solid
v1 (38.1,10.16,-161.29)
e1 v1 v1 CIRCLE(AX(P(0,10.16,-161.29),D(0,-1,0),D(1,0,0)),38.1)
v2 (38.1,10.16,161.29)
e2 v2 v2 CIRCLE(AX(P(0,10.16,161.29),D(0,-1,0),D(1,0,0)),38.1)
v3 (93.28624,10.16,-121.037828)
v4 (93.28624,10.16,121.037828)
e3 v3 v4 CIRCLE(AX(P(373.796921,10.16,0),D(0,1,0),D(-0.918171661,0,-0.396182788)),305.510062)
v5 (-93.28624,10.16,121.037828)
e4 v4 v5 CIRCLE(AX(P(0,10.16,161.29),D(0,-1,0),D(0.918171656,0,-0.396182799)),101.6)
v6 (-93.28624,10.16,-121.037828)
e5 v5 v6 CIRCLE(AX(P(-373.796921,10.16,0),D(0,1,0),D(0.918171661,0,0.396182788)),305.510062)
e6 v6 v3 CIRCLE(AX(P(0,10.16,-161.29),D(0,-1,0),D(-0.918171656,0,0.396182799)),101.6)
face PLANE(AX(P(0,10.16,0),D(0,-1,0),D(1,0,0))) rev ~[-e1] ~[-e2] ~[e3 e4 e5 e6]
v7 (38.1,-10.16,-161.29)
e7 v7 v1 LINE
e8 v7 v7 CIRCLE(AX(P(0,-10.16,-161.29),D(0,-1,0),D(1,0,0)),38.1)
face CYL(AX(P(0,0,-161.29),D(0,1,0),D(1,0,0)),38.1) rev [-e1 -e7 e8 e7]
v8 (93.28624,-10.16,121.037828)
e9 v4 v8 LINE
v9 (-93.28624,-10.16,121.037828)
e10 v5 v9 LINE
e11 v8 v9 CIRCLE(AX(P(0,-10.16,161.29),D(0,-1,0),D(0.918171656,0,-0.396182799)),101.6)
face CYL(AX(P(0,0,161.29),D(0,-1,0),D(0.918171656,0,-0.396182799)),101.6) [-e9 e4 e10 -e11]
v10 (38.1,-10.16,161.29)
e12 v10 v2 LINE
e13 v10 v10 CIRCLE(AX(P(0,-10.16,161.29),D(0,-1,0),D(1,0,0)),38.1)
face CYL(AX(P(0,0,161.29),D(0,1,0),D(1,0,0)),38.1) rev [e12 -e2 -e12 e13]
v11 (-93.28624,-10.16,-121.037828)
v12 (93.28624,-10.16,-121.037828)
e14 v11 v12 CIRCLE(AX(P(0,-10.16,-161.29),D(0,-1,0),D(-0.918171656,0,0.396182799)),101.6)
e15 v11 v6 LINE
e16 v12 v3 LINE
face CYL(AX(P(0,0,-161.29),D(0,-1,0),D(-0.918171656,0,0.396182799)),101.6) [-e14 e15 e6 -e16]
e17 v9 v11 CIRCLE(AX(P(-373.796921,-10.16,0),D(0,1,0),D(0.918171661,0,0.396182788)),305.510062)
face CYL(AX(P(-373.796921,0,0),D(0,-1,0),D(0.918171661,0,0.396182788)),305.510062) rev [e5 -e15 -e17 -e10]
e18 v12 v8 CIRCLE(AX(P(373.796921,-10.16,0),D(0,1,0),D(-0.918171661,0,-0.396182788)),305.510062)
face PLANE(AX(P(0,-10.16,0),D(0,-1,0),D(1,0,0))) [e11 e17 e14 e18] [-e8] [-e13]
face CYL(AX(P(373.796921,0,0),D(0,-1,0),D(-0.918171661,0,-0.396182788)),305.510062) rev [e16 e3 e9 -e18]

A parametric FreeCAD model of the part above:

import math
import FreeCAD as App
import Part
import Sketcher
from FreeCAD import Vector
Q = App.Units.Quantity

doc = App.newDocument("Part")
params = doc.addObject("Spreadsheet::Sheet", "Params")
for row, (alias, value) in enumerate([
    ("sketch1_diameter", "3 in"),
    ("sketch1_radius", "4 in"),
    ("pad1_length", "0.8 in"),
], start=1):
    params.set(f"A{row}", alias)
    params.set(f"B{row}", "=" + value)
    params.setAlias(f"B{row}", alias)

body = doc.addObject("PartDesign::Body", "Body")

sketch1 = doc.addObject("Sketcher::SketchObject", "Sketch")
body.addObject(sketch1)
sketch1.AttachmentSupport = (doc.XZ_Plane, [""])
sketch1.MapMode = "FlatFace"
sketch1.addGeometry(Part.ArcOfCircle(Part.Circle(Vector(374, 0, 0), Vector(0, 0, 1), 306), math.radians(157), math.radians(203)), False)
sketch1.addGeometry(Part.ArcOfCircle(Part.Circle(Vector(0, 161, 0), Vector(0, 0, 1), 102), math.radians(-23), math.radians(203)), False)
sketch1.addGeometry(Part.ArcOfCircle(Part.Circle(Vector(-374, 0, 0), Vector(0, 0, 1), 306), math.radians(-23), math.radians(23)), False)
sketch1.addGeometry(Part.ArcOfCircle(Part.Circle(Vector(0, -161, 0), Vector(0, 0, 1), 102), math.radians(157), math.radians(383)), False)
sketch1.addGeometry(Part.Circle(Vector(0, -161, 0), Vector(0, 0, 1), 38), False)
sketch1.addGeometry(Part.Circle(Vector(0, 161, 0), Vector(0, 0, 1), 38), False)
sketch1.addConstraint(Sketcher.Constraint("Tangent", 0, 1, 1, 1))
sketch1.addConstraint(Sketcher.Constraint("Tangent", 1, 2, 2, 2))
sketch1.addConstraint(Sketcher.Constraint("Tangent", 2, 1, 3, 1))
sketch1.addConstraint(Sketcher.Constraint("Tangent", 3, 2, 0, 2))
sketch1.addConstraint(Sketcher.Constraint("Coincident", 4, 3, 3, 3))
sketch1.addConstraint(Sketcher.Constraint("Coincident", 5, 3, 1, 3))
sketch1.addConstraint(Sketcher.Constraint("Equal", 0, 2))
sketch1.addConstraint(Sketcher.Constraint("Equal", 1, 3))
sketch1.addConstraint(Sketcher.Constraint("Equal", 4, 5))
sketch1.addConstraint(Sketcher.Constraint("Symmetric", 0, 3, 2, 3, -1, 1))
sketch1.addConstraint(Sketcher.Constraint("PointOnObject", 0, 3, -1))
sketch1.addConstraint(Sketcher.Constraint("Diameter", 4, Q("3 in")))
sketch1.addConstraint(Sketcher.Constraint("Radius", 1, Q("4 in")))
sketch1.addConstraint(Sketcher.Constraint("DistanceY", 3, 3, 1, 3, Q("12.7 in")))
sketch1.addConstraint(Sketcher.Constraint("Radius", 0, Q("305.510062 mm")))
sketch1.setExpression("Constraints[11]", "Params.sketch1_diameter")
sketch1.setExpression("Constraints[12]", "Params.sketch1_radius")
pad1 = doc.addObject("PartDesign::Pad", "Pad")
body.addObject(pad1)
pad1.Profile = sketch1
pad1.setExpression("Length", "Params.pad1_length")
pad1.Midplane = True

doc.recompute()
